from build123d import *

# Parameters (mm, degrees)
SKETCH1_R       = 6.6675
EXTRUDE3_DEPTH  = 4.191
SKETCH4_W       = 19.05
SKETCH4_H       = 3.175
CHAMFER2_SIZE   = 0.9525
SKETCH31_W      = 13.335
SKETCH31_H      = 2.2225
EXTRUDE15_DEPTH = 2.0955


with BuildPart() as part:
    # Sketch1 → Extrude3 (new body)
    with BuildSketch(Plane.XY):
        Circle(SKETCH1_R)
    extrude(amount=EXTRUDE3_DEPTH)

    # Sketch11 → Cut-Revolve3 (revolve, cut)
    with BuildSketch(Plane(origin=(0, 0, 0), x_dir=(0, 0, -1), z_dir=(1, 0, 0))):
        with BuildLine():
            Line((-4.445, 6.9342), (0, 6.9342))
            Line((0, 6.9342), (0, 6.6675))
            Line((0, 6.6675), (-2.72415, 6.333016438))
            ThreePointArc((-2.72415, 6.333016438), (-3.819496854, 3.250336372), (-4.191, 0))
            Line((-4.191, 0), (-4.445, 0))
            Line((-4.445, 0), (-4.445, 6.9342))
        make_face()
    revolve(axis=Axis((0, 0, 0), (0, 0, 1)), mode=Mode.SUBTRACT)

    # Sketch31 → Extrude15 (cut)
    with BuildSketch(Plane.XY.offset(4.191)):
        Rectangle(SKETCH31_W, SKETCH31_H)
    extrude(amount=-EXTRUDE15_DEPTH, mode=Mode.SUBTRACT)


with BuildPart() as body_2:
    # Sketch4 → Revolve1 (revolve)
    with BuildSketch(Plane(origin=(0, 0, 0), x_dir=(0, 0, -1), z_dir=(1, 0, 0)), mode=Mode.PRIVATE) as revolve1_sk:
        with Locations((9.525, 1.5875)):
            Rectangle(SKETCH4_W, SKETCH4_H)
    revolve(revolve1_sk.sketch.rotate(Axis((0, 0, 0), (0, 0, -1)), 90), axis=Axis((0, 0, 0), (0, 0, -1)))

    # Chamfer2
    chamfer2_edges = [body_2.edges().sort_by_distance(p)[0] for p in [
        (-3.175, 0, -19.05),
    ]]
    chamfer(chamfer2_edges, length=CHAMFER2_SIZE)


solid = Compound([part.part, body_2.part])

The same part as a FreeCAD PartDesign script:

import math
import FreeCAD as App
import Part
import Sketcher
from FreeCAD import Vector
Q = App.Units.Quantity


def edges_at(feature, points):
    """Names of the edges that pass closest to the given points."""
    edges = feature.Shape.Edges
    near = lambda p: min(range(len(edges)), key=lambda i: edges[i].distToShape(Part.Vertex(*p))[0])
    return sorted({f"Edge{near(p) + 1}" for p in points})


def add_polygon(sketch, points):
    """Adds a closed chain of lines whose ends are joined by coincident constraints."""
    first, n = sketch.GeometryCount, len(points)
    for a, b in zip(points, points[1:] + points[:1]):
        sketch.addGeometry(Part.LineSegment(App.Vector(*a, 0), App.Vector(*b, 0)), False)
    for i in range(n):
        sketch.addConstraint(Sketcher.Constraint("Coincident", first + i, 2, first + (i + 1) % n, 1))

doc = App.newDocument("Part")
body = doc.addObject("PartDesign::Body", "Body")

sketch1 = body.newObject("Sketcher::SketchObject", "Sketch")
sketch1.AttachmentSupport = (doc.getObject("XY_Plane"), [""])
sketch1.MapMode = "FlatFace"
sketch1.addGeometry(Part.Circle(Vector(0, 0, 0), Vector(0, 0, 1), 6.6675), False)
sketch1.addConstraint(Sketcher.Constraint("Coincident", 0, 3, -1, 1))
sketch1.addConstraint(Sketcher.Constraint("Diameter", 0, Q("0.525 in")))
pad1 = body.newObject("PartDesign::Pad", "Pad")
pad1.Profile = sketch1
pad1.Length = Q("0.165 in")

sketch2 = body.newObject("Sketcher::SketchObject", "Sketch001")
sketch2.AttachmentSupport = (doc.getObject("YZ_Plane"), [""])
sketch2.MapMode = "FlatFace"
sketch2.addGeometry(Part.LineSegment(Vector(6.9342, 0, 0), Vector(6.9342, 4.445, 0)), False)
sketch2.addGeometry(Part.LineSegment(Vector(6.9342, 4.445, 0), Vector(0, 4.445, 0)), False)
sketch2.addGeometry(Part.LineSegment(Vector(0, 4.445, 0), Vector(0, 4.191, 0)), False)
sketch2.addGeometry(Part.ArcOfCircle(Part.Circle(Vector(0, -10.21359, 0), Vector(0, 0, 1), 14.40459), math.radians(63.918278), math.radians(90)), False)
sketch2.addGeometry(Part.LineSegment(Vector(6.333016, 2.72415, 0), Vector(6.6675, 0, 0)), False)
sketch2.addGeometry(Part.LineSegment(Vector(6.6675, 0, 0), Vector(6.9342, 0, 0)), False)
sketch2.addConstraint(Sketcher.Constraint("Coincident", 0, 2, 1, 1))
sketch2.addConstraint(Sketcher.Constraint("Coincident", 1, 2, 2, 1))
sketch2.addConstraint(Sketcher.Constraint("Coincident", 2, 2, 3, 2))
sketch2.addConstraint(Sketcher.Constraint("Coincident", 3, 1, 4, 1))
sketch2.addConstraint(Sketcher.Constraint("Coincident", 4, 2, 5, 1))
sketch2.addConstraint(Sketcher.Constraint("Coincident", 5, 2, 0, 1))
sketch2.addConstraint(Sketcher.Constraint("Vertical", 0))
sketch2.addConstraint(Sketcher.Constraint("Horizontal", 1))
sketch2.addConstraint(Sketcher.Constraint("Vertical", 2))
sketch2.addConstraint(Sketcher.Constraint("Horizontal", 5))
sketch2.addConstraint(Sketcher.Constraint("PointOnObject", 3, 3, -2))
sketch2.addConstraint(Sketcher.Constraint("PointOnObject", 1, 2, -2))
sketch2.addConstraint(Sketcher.Constraint("PointOnObject", 4, 2, -1))
sketch2.addConstraint(Sketcher.Constraint("Angle", 4, Q("-83 deg")))
sketch2.addConstraint(Sketcher.Constraint("DistanceY", 2, 2, 2, 1, Q("0.01 in")))
sketch2.addConstraint(Sketcher.Constraint("DistanceX", 1, 2, 1, 1, Q("0.273 in")))
sketch2.addConstraint(Sketcher.Constraint("DistanceY", 0, 1, 0, 2, Q("0.175 in")))
sketch2.addConstraint(Sketcher.Constraint("DistanceX", 5, 1, 5, 2, Q("0.0105 in")))
sketch2.addConstraint(Sketcher.Constraint("Radius", 3, 14.40459))
groove = body.newObject("PartDesign::Groove", "Groove")
groove.Profile = sketch2
groove.ReferenceAxis = (sketch2, ["V_Axis"])
groove.Angle = 360

sketch3 = body.newObject("Sketcher::SketchObject", "Sketch002")
sketch3.AttachmentSupport = (doc.getObject("XY_Plane"), [""])
sketch3.MapMode = "FlatFace"
sketch3.AttachmentOffset = App.Placement(Vector(0, 0, 0.165 * 25.4), App.Rotation())
add_polygon(sketch3, [(-6.6675, 1.11125), (-6.6675, -1.11125), (6.6675, -1.11125), (6.6675, 1.11125)])
sketch3.addConstraint(Sketcher.Constraint("Vertical", 0))
sketch3.addConstraint(Sketcher.Constraint("Horizontal", 1))
sketch3.addConstraint(Sketcher.Constraint("Vertical", 2))
sketch3.addConstraint(Sketcher.Constraint("Horizontal", 3))
sketch3.addConstraint(Sketcher.Constraint("Symmetric", 0, 2, 2, 2, -1, 1))
sketch3.addConstraint(Sketcher.Constraint("DistanceX", 1, 1, 1, 2, Q("0.525 in")))
sketch3.addConstraint(Sketcher.Constraint("DistanceY", 0, 2, 0, 1, Q("0.0875 in")))
pocket1 = body.newObject("PartDesign::Pocket", "Pocket")
pocket1.Profile = sketch3
pocket1.Length = Q("0.0825 in")
body2 = doc.addObject("PartDesign::Body", "Body001")

sketch4 = body2.newObject("Sketcher::SketchObject", "Sketch003")
sketch4.AttachmentSupport = (doc.getObject("YZ_Plane001"), [""])
sketch4.MapMode = "FlatFace"
add_polygon(sketch4, [(3.175, 0), (0, 0), (0, -19.05), (3.175, -19.05)])
sketch4.addConstraint(Sketcher.Constraint("Horizontal", 0))
sketch4.addConstraint(Sketcher.Constraint("Vertical", 1))
sketch4.addConstraint(Sketcher.Constraint("Horizontal", 2))
sketch4.addConstraint(Sketcher.Constraint("Vertical", 3))
sketch4.addConstraint(Sketcher.Constraint("Coincident", 0, 2, -1, 1))
sketch4.addConstraint(Sketcher.Constraint("DistanceY", 1, 2, 1, 1, Q("0.75 in")))
sketch4.addConstraint(Sketcher.Constraint("DistanceX", 0, 2, 0, 1, Q("0.125 in")))
revolution = body2.newObject("PartDesign::Revolution", "Revolution")
revolution.Profile = sketch4
revolution.ReferenceAxis = (sketch4, ["V_Axis"])
revolution.Angle = 360
doc.recompute()

chamfer = body2.newObject("PartDesign::Chamfer", "Chamfer")
chamfer.Base = (revolution, edges_at(revolution, [(-3.175, 0, -19.05)]))
chamfer.Size = Q("0.0375 in")

doc.recompute()
